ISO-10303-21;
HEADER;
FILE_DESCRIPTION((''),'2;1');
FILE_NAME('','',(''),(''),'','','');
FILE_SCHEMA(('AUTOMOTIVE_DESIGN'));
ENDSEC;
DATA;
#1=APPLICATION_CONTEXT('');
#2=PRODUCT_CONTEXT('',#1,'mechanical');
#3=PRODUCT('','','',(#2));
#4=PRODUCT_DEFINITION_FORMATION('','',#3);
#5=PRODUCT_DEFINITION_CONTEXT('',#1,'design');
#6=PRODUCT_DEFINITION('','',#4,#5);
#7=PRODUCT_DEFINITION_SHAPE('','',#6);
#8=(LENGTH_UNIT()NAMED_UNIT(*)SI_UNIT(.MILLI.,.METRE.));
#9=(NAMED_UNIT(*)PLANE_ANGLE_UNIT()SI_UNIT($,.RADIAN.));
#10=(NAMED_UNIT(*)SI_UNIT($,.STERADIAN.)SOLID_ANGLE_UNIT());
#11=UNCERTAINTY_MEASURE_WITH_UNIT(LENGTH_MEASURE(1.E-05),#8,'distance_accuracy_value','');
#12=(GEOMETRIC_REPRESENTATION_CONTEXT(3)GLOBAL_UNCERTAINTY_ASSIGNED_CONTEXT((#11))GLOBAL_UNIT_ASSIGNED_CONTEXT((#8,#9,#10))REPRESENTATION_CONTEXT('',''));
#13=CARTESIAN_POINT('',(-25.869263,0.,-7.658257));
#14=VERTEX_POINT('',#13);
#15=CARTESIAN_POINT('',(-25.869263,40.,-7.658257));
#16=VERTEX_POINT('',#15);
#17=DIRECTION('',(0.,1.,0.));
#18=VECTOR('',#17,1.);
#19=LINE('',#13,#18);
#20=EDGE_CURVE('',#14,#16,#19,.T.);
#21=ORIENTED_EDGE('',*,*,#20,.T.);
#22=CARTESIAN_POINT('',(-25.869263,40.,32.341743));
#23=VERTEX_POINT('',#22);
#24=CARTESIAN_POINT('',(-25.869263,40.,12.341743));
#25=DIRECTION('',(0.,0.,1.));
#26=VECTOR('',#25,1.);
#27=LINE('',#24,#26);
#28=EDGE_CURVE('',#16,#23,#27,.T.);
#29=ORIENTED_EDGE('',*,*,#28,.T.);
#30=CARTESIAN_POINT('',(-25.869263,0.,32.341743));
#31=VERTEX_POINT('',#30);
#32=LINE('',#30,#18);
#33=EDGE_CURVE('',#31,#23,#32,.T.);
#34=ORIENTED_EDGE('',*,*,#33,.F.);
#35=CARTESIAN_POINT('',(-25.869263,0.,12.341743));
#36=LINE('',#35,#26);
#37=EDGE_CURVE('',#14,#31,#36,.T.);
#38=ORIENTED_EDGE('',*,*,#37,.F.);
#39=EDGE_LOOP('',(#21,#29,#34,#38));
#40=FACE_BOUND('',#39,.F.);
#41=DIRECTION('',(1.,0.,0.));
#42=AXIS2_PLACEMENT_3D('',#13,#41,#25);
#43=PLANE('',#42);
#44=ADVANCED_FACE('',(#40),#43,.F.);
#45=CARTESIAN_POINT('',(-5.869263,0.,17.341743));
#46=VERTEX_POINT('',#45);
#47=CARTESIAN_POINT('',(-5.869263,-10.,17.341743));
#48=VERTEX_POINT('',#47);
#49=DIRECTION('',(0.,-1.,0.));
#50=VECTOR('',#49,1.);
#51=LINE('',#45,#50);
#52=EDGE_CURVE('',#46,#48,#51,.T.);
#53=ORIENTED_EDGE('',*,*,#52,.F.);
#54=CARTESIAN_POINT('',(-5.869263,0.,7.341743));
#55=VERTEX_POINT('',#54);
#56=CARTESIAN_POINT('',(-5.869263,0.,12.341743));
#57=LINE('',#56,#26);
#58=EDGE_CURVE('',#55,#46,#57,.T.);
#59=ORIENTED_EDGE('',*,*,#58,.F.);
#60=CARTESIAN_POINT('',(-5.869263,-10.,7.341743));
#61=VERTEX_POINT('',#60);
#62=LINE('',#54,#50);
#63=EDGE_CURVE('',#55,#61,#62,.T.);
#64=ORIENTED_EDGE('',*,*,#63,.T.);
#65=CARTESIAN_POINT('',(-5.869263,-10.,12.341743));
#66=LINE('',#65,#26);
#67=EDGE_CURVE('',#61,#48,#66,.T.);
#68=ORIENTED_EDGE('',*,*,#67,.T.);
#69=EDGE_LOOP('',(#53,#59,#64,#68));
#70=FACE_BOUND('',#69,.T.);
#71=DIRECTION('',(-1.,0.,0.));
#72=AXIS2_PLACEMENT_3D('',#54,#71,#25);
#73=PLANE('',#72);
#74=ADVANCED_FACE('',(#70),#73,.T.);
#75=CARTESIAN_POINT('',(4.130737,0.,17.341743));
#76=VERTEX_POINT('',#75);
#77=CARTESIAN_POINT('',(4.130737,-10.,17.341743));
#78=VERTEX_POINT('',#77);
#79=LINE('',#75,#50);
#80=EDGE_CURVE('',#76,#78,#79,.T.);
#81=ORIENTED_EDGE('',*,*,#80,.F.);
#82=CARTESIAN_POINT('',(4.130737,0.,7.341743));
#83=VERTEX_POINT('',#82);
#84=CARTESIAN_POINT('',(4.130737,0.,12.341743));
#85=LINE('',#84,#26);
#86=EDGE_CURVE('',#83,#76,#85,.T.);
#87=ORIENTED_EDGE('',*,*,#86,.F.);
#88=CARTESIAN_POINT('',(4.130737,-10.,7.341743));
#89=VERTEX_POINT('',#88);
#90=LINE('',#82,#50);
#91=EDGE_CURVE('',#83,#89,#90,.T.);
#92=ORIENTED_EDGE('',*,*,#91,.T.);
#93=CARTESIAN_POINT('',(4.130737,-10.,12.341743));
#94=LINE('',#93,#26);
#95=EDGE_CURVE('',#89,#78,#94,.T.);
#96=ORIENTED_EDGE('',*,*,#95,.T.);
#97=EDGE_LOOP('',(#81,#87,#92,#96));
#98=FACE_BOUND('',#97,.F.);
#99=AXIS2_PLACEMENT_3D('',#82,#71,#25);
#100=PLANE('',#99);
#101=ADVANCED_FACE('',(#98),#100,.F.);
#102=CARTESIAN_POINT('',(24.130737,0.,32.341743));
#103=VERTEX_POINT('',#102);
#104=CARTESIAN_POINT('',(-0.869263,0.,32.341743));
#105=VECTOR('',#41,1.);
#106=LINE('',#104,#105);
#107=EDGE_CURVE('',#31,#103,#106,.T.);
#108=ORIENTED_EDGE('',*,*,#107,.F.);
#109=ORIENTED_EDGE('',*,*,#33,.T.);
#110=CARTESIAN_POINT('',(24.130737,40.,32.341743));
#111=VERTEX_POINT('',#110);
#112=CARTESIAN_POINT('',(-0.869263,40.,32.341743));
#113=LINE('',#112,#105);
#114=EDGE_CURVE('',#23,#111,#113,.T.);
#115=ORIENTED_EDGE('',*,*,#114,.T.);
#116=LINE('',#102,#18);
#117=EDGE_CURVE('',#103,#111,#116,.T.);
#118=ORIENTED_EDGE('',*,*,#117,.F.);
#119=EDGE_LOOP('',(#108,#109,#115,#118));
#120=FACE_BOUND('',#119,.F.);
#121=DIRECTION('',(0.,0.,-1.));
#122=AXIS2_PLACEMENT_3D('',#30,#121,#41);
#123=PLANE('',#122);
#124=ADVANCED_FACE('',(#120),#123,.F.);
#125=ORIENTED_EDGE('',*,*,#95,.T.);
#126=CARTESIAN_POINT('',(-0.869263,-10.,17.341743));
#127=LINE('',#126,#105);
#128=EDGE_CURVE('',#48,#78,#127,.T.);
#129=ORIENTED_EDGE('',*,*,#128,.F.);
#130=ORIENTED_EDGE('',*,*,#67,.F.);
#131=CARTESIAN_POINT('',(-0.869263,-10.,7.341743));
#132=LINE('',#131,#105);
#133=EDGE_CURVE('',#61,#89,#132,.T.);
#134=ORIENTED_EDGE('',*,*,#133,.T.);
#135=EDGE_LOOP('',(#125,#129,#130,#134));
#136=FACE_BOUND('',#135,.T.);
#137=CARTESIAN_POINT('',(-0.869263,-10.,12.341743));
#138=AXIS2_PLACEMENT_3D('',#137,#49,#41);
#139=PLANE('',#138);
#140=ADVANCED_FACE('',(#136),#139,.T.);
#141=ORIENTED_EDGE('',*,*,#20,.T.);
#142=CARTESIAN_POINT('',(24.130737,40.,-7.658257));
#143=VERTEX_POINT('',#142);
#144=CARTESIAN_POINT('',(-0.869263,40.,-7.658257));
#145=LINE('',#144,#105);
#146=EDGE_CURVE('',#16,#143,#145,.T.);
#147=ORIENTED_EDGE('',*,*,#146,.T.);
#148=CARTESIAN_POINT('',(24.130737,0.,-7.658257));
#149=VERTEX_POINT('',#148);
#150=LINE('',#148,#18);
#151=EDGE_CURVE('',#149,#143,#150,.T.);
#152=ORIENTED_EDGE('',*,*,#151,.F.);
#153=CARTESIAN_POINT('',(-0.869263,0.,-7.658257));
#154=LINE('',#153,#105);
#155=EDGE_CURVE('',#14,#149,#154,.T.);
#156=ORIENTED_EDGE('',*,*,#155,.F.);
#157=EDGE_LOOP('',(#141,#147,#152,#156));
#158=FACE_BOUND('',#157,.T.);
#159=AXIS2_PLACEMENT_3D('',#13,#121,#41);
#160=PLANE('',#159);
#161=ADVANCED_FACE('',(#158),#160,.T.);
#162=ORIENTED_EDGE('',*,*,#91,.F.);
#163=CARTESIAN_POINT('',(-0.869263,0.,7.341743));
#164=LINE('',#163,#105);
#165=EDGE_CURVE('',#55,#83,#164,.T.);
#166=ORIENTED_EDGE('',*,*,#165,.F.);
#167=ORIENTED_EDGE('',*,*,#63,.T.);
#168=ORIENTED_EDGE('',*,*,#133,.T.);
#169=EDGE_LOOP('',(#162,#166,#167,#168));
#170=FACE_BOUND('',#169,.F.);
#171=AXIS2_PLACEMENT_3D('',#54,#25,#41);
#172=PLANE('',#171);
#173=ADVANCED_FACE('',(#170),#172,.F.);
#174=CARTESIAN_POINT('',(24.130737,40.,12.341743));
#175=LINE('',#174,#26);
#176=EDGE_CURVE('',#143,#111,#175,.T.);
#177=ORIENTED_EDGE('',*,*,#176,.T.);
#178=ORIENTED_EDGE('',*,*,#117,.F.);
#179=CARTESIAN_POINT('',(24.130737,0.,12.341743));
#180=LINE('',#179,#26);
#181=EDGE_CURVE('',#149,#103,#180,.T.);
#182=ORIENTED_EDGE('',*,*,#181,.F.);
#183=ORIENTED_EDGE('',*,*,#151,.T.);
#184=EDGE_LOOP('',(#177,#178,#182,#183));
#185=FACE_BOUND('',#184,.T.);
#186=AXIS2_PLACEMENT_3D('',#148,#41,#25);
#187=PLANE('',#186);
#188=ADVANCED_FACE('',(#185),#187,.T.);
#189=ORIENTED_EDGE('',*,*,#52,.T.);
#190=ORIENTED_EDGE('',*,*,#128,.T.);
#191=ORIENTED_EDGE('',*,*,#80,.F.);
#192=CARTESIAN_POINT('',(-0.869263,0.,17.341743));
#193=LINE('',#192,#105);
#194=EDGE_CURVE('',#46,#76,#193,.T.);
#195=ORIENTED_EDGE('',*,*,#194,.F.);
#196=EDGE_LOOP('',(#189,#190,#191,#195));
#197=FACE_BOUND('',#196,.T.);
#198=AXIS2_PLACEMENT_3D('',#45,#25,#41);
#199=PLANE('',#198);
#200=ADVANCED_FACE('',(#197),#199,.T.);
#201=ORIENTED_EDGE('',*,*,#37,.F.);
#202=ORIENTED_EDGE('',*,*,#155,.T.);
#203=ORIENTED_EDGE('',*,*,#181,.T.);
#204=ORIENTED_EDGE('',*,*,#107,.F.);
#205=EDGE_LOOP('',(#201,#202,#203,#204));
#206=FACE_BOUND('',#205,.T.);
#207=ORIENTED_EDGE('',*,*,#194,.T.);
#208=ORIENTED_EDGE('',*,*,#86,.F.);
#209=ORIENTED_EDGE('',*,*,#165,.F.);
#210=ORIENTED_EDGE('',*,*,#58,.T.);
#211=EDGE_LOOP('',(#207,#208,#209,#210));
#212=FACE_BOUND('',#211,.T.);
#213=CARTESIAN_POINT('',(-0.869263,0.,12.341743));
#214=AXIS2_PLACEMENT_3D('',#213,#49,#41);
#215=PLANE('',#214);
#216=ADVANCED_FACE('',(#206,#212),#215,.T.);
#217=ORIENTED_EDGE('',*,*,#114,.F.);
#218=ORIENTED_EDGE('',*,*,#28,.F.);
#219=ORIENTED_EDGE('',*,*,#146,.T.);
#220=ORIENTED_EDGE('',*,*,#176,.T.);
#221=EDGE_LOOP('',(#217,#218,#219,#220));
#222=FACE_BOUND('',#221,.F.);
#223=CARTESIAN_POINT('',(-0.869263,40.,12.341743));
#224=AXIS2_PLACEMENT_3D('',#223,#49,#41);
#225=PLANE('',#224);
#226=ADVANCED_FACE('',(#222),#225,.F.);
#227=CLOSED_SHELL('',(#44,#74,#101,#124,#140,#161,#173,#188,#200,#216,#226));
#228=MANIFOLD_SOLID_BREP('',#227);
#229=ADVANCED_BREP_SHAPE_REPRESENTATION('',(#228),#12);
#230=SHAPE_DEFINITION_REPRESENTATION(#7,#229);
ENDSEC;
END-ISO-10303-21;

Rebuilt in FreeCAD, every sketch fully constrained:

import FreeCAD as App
import Part
import Sketcher
Q = App.Units.Quantity

doc = App.newDocument("Part")
body = doc.addObject("PartDesign::Body", "Body")

sketch1 = body.newObject("Sketcher::SketchObject", "Sketch")
sketch1.AttachmentSupport = (doc.getObject("XZ_Plane"), [""])
sketch1.MapMode = "FlatFace"
sketch1.addGeometry([
    Part.LineSegment(App.Vector(-25.869263, 32.341743, 0), App.Vector(-25.869263, -7.658257, 0)),
    Part.LineSegment(App.Vector(-25.869263, -7.658257, 0), App.Vector(24.130737, -7.658257, 0)),
    Part.LineSegment(App.Vector(24.130737, -7.658257, 0), App.Vector(24.130737, 32.341743, 0)),
    Part.LineSegment(App.Vector(24.130737, 32.341743, 0), App.Vector(-25.869263, 32.341743, 0)),
], False)
sketch1.addConstraint([
    Sketcher.Constraint("Coincident", 0, 2, 1, 1),
    Sketcher.Constraint("Coincident", 1, 2, 2, 1),
    Sketcher.Constraint("Coincident", 2, 2, 3, 1),
    Sketcher.Constraint("Coincident", 3, 2, 0, 1),
    Sketcher.Constraint("Vertical", 0),
    Sketcher.Constraint("Horizontal", 1),
    Sketcher.Constraint("Vertical", 2),
    Sketcher.Constraint("Horizontal", 3),
    Sketcher.Constraint("DistanceX", 1, 1, 1, 2, Q("50 mm")),
    Sketcher.Constraint("DistanceY", 0, 2, 0, 1, Q("40 mm")),
    Sketcher.Constraint("DistanceX", 0, 2, -1, 1, Q("25.869263 mm")),
    Sketcher.Constraint("DistanceY", 0, 2, -1, 1, Q("7.658257 mm")),
])
pad1 = body.newObject("PartDesign::Pad", "Pad")
pad1.Profile = sketch1
pad1.Length = 40
pad1.Reversed = True

sketch2 = body.newObject("Sketcher::SketchObject", "Sketch001")
sketch2.AttachmentSupport = (doc.getObject("XZ_Plane"), [""])
sketch2.MapMode = "FlatFace"
sketch2.addGeometry([
    Part.LineSegment(App.Vector(-5.869263, 17.341743, 0), App.Vector(-5.869263, 7.341743, 0)),
    Part.LineSegment(App.Vector(-5.869263, 7.341743, 0), App.Vector(4.130737, 7.341743, 0)),
    Part.LineSegment(App.Vector(4.130737, 7.341743, 0), App.Vector(4.130737, 17.341743, 0)),
    Part.LineSegment(App.Vector(4.130737, 17.341743, 0), App.Vector(-5.869263, 17.341743, 0)),
], False)
sketch2.addConstraint([
    Sketcher.Constraint("Coincident", 0, 2, 1, 1),
    Sketcher.Constraint("Coincident", 1, 2, 2, 1),
    Sketcher.Constraint("Coincident", 2, 2, 3, 1),
    Sketcher.Constraint("Coincident", 3, 2, 0, 1),
    Sketcher.Constraint("Vertical", 0),
    Sketcher.Constraint("Horizontal", 1),
    Sketcher.Constraint("Vertical", 2),
    Sketcher.Constraint("Horizontal", 3),
    Sketcher.Constraint("Equal", 3, 0),
    Sketcher.Constraint("DistanceX", 1, 1, 1, 2, Q("10 mm")),
    Sketcher.Constraint("DistanceX", 0, 2, -1, 1, Q("5.869263 mm")),
    Sketcher.Constraint("DistanceY", -1, 1, 0, 2, Q("7.341743 mm")),
])
pad2 = body.newObject("PartDesign::Pad", "Pad001")
pad2.Profile = sketch2
pad2.Length = 10

doc.recompute()
